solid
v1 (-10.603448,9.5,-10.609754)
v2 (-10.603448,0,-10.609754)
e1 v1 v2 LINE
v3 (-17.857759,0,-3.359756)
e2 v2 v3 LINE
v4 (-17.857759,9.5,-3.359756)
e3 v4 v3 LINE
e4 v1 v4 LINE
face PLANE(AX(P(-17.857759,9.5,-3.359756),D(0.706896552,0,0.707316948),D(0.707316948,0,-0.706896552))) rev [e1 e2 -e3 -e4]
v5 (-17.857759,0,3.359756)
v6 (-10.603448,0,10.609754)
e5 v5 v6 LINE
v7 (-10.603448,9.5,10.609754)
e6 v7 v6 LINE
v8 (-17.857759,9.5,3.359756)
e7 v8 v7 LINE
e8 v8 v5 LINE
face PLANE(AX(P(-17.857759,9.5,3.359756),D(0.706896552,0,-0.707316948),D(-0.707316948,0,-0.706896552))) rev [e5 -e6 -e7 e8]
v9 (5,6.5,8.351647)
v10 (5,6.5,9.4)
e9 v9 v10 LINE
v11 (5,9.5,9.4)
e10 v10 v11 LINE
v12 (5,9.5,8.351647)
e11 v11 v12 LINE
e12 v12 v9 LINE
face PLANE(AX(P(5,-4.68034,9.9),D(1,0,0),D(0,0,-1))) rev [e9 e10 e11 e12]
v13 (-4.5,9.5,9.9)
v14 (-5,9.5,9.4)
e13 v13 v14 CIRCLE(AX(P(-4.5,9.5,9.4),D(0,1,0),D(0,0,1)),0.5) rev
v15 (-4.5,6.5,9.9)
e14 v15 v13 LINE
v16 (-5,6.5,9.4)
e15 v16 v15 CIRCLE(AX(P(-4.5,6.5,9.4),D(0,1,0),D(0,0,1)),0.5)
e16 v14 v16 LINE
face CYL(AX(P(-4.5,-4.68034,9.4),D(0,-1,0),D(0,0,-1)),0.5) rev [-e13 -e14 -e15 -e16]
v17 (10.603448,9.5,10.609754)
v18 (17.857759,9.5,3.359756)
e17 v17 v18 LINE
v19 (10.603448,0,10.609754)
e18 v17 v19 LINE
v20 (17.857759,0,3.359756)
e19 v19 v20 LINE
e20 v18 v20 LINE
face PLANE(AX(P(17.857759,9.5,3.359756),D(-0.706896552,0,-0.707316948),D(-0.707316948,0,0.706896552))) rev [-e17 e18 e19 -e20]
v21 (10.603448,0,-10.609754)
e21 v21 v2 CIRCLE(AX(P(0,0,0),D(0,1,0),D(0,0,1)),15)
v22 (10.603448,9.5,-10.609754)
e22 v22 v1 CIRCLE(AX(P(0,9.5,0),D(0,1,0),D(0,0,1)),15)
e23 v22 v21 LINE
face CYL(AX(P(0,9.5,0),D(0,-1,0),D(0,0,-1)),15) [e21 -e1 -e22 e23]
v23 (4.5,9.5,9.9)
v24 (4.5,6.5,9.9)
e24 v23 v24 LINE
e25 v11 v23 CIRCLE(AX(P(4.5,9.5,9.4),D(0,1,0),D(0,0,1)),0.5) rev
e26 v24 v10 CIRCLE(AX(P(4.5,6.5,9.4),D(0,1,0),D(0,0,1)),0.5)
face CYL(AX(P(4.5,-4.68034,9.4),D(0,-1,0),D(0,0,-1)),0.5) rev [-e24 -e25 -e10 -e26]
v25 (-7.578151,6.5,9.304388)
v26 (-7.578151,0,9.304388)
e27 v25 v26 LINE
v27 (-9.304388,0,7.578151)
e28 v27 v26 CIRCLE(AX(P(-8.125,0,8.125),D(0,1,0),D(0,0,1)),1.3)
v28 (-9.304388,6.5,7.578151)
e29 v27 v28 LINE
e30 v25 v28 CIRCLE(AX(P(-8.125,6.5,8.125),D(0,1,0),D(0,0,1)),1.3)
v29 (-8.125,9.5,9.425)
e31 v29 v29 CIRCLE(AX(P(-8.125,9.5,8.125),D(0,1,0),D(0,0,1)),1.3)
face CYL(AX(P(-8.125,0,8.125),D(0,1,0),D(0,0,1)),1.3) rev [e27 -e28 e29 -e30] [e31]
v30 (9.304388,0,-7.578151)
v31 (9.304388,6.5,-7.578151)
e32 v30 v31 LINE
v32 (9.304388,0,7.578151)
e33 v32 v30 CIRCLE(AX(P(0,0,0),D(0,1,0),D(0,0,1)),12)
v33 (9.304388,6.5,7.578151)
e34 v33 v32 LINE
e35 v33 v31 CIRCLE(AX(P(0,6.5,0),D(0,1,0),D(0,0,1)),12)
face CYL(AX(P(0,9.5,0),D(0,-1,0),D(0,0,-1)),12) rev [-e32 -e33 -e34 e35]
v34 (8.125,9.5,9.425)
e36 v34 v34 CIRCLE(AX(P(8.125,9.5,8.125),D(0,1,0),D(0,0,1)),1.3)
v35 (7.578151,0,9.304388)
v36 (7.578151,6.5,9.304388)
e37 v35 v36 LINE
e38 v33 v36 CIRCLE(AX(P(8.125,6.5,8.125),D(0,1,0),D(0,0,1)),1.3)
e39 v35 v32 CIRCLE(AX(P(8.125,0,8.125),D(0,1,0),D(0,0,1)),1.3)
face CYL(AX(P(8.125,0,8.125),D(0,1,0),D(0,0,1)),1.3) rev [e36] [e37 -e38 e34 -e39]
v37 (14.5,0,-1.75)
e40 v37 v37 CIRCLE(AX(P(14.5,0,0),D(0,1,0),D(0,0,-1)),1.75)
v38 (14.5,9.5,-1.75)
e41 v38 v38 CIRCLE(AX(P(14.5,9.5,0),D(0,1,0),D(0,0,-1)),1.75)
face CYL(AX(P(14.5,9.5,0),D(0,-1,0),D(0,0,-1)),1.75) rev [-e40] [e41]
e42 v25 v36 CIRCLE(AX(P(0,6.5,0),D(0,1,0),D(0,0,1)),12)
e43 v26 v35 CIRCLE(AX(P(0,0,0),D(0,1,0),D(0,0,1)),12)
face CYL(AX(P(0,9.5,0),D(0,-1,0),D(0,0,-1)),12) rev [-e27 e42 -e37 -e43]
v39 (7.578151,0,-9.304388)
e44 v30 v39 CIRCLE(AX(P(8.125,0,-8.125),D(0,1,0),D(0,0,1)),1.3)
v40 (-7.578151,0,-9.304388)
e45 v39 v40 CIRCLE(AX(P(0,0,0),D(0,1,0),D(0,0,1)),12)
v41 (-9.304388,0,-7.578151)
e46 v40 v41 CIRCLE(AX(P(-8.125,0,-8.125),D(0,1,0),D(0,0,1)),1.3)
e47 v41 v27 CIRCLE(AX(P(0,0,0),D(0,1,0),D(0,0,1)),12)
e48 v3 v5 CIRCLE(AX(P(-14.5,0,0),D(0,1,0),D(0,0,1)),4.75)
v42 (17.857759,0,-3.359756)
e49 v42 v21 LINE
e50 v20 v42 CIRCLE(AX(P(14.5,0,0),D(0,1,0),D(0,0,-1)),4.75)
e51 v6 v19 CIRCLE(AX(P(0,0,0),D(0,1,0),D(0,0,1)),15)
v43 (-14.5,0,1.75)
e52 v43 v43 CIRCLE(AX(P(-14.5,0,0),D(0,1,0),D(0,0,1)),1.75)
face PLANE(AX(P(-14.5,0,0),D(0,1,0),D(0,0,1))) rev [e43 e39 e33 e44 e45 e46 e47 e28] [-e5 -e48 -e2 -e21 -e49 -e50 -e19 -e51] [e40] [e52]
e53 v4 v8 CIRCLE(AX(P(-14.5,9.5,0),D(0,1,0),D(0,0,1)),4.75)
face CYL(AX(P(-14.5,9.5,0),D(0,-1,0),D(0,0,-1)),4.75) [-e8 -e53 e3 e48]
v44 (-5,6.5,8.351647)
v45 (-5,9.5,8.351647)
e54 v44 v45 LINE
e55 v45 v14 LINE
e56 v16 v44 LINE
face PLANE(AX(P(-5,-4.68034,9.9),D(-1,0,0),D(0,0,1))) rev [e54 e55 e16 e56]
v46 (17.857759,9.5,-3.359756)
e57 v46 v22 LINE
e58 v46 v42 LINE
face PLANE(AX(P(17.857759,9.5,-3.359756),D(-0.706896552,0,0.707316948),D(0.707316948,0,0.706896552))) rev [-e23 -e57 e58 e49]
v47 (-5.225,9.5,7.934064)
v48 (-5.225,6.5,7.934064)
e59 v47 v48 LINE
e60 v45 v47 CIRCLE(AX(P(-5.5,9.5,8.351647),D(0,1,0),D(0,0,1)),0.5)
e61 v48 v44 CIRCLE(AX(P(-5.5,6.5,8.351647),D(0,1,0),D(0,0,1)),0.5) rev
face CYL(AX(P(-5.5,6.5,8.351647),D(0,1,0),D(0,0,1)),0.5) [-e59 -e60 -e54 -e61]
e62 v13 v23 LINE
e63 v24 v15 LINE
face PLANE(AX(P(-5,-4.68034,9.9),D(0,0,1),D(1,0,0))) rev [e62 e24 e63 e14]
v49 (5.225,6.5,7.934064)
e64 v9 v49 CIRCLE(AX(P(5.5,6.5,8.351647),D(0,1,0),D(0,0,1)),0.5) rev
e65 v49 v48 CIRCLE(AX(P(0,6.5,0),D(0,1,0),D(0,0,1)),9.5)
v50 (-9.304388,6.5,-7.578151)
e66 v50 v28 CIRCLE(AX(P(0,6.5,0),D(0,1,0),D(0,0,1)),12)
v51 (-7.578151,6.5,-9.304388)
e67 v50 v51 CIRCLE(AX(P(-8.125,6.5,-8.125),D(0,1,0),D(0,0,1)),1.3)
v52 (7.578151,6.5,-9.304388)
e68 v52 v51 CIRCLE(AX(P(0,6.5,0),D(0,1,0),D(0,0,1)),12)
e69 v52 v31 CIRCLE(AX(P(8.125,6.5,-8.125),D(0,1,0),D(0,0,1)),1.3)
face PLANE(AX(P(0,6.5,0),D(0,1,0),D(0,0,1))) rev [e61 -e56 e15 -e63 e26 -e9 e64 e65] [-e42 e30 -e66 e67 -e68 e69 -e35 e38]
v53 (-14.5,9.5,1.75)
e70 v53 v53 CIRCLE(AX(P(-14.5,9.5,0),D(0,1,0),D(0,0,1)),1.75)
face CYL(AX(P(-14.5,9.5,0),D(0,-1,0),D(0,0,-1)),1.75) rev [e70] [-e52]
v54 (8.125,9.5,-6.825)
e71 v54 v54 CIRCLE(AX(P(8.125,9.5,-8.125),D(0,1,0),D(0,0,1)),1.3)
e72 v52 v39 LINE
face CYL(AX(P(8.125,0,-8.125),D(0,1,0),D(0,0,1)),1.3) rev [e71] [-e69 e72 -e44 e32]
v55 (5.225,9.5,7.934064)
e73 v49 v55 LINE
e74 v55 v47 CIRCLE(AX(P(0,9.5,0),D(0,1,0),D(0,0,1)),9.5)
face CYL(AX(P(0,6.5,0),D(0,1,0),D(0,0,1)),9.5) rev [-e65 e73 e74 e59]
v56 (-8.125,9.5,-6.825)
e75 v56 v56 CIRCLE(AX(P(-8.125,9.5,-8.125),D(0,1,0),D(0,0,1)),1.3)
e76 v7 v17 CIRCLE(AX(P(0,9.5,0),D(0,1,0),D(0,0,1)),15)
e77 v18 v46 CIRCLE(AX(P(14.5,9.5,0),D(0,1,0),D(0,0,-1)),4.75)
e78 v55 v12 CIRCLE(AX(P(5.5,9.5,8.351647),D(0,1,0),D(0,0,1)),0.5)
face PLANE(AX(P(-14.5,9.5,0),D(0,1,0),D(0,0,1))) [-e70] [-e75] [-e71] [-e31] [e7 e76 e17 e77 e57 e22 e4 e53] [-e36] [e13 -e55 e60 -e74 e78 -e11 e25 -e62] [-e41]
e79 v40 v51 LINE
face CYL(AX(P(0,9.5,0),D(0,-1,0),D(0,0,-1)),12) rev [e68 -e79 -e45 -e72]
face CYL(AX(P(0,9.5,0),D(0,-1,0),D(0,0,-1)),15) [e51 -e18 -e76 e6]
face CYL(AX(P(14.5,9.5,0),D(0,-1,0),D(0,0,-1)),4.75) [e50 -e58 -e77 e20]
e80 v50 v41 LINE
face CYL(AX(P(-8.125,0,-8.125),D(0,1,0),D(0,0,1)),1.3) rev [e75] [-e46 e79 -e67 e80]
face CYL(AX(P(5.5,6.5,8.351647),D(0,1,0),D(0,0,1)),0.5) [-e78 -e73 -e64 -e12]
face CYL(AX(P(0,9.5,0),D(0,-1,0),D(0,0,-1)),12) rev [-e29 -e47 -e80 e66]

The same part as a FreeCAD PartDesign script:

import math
import FreeCAD as App
import Part
import Sketcher

V = App.Vector


def edges_at(feature, points):
    """Names of the edges that pass closest to the given points."""
    edges = feature.Shape.Edges
    near = lambda p: min(range(len(edges)), key=lambda i: edges[i].distToShape(Part.Vertex(*p))[0])
    return sorted({f"Edge{near(p) + 1}" for p in points})

doc = App.newDocument("Part")
body = doc.addObject("PartDesign::Body", "Body")

# Sketch on XZ plane
sketch1 = doc.addObject("Sketcher::SketchObject", "Sketch")
body.addObject(sketch1)
sketch1.AttachmentSupport = (doc.XZ_Plane, [""])
sketch1.MapMode = "FlatFace"
sketch1.addGeometry([
    Part.LineSegment(V(-10.6, -10.6, 0), V(-17.9, -3.4, 0)),  # 0
    Part.ArcOfCircle(Part.Circle(V(-14.5, 0, 0), V(0, 0, 1), 4.8), math.radians(135), math.radians(225)),  # 1
    Part.LineSegment(V(-17.9, 3.4, 0), V(-10.6, 10.6, 0)),  # 2
    Part.ArcOfCircle(Part.Circle(V(0, 0, 0), V(0, 0, 1), 15), math.radians(45), math.radians(135)),  # 3
    Part.LineSegment(V(10.6, 10.6, 0), V(17.9, 3.4, 0)),  # 4
    Part.ArcOfCircle(Part.Circle(V(14.5, 0, 0), V(0, 0, 1), 4.8), math.radians(-45), math.radians(45)),  # 5
    Part.LineSegment(V(17.9, -3.4, 0), V(10.6, -10.6, 0)),  # 6
    Part.ArcOfCircle(Part.Circle(V(0, 0, 0), V(0, 0, 1), 15), math.radians(-135), math.radians(-45)),  # 7
    Part.Circle(V(14.5, 0, 0), V(0, 0, 1), 1.8),  # 8
    Part.Circle(V(0, 0, 0), V(0, 0, 1), 12),  # 9
    Part.Circle(V(-14.5, 0, 0), V(0, 0, 1), 1.8),  # 10
], False)
sketch1.addConstraint([
    Sketcher.Constraint("Tangent", 0, 2, 1, 2),
    Sketcher.Constraint("Tangent", 1, 1, 2, 1),
    Sketcher.Constraint("Tangent", 2, 2, 3, 2),
    Sketcher.Constraint("Tangent", 3, 1, 4, 1),
    Sketcher.Constraint("Tangent", 4, 2, 5, 2),
    Sketcher.Constraint("Tangent", 5, 1, 6, 1),
    Sketcher.Constraint("Tangent", 6, 2, 7, 2),
    Sketcher.Constraint("Tangent", 7, 1, 0, 1),
    Sketcher.Constraint("Coincident", 3, 3, -1, 1),
    Sketcher.Constraint("Coincident", 7, 3, -1, 1),
    Sketcher.Constraint("Coincident", 9, 3, -1, 1),
    Sketcher.Constraint("Coincident", 8, 3, 5, 3),
    Sketcher.Constraint("Coincident", 10, 3, 1, 3),
    Sketcher.Constraint("Equal", 1, 5),
    Sketcher.Constraint("Equal", 3, 7),
    Sketcher.Constraint("Equal", 8, 10),
    Sketcher.Constraint("Symmetric", 1, 3, 5, 3, -1, 1),
    Sketcher.Constraint("PointOnObject", 1, 3, -1),
    Sketcher.Constraint("Diameter", 9, 24.0),
    Sketcher.Constraint("Radius", 3, 15.0),
    Sketcher.Constraint("Diameter", 8, 3.5),
    Sketcher.Constraint("Radius", 1, 4.75),
    Sketcher.Constraint("DistanceX", 1, 3, 5, 3, 29.0),
])
pad1 = doc.addObject("PartDesign::Pad", "Pad")
body.addObject(pad1)
pad1.Profile = sketch1
pad1.Length = 9.5
pad1.Reversed = True

# Sketch on XZ plane
sketch2 = doc.addObject("Sketcher::SketchObject", "Sketch001")
body.addObject(sketch2)
sketch2.AttachmentSupport = (doc.XZ_Plane, [""])
sketch2.MapMode = "FlatFace"
sketch2.AttachmentOffset = App.Placement(V(0, 0, -9.5), App.Rotation())
sketch2.addGeometry([
    Part.Circle(V(0, 0, 0), V(0, 0, 1), 12),
    Part.Circle(V(0, 0, 0), V(0, 0, 1), 10),
], False)
sketch2.addConstraint([
    Sketcher.Constraint("Coincident", 0, 3, -1, 1),
    Sketcher.Constraint("Coincident", 1, 3, -1, 1),
    Sketcher.Constraint("Diameter", 0, 24.0),
    Sketcher.Constraint("Diameter", 1, 19.0),
])
pad2 = doc.addObject("PartDesign::Pad", "Pad001")
body.addObject(pad2)
pad2.Profile = sketch2
pad2.Length = 3

# Sketch on XZ plane
sketch3 = doc.addObject("Sketcher::SketchObject", "Sketch002")
body.addObject(sketch3)
sketch3.AttachmentSupport = (doc.XZ_Plane, [""])
sketch3.MapMode = "FlatFace"
sketch3.AttachmentOffset = App.Placement(V(0, 0, -9.5), App.Rotation())
sketch3.addGeometry([
    Part.Circle(V(8.1, -8.1, 0), V(0, 0, 1), 1.3),
    Part.Circle(V(-8.1, -8.1, 0), V(0, 0, 1), 1.3),
    Part.Circle(V(-8.1, 8.1, 0), V(0, 0, 1), 1.3),
    Part.Circle(V(8.1, 8.1, 0), V(0, 0, 1), 1.3),
], False)
sketch3.addConstraint([
    Sketcher.Constraint("Equal", 0, 1),
    Sketcher.Constraint("Equal", 1, 2),
    Sketcher.Constraint("Equal", 2, 3),
    Sketcher.Constraint("Symmetric", 0, 3, 2, 3, -1, 1),
    Sketcher.Constraint("Symmetric", 1, 3, 3, 3, -1, 1),
    Sketcher.Constraint("Symmetric", 0, 3, 1, 3, -2),
    Sketcher.Constraint("Diameter", 0, 2.6),
    Sketcher.Constraint("DistanceX", 1, 3, 0, 3, 16.25),
    Sketcher.Constraint("DistanceY", 1, 3, 2, 3, 16.25),
])
pocket1 = doc.addObject("PartDesign::Pocket", "Pocket")
body.addObject(pocket1)
pocket1.Profile = sketch3
pocket1.Type = "ThroughAll"
pocket1.Reversed = True

# Sketch on XZ plane
sketch4 = doc.addObject("Sketcher::SketchObject", "Sketch003")
body.addObject(sketch4)
sketch4.AttachmentSupport = (doc.XZ_Plane, [""])
sketch4.MapMode = "FlatFace"
sketch4.AttachmentOffset = App.Placement(V(0, 0, -9.5), App.Rotation())
sketch4.addGeometry([
    Part.LineSegment(V(-5, 5, 0), V(-5, 10, 0)),
    Part.LineSegment(V(-5, 10, 0), V(5, 10, 0)),
    Part.LineSegment(V(5, 10, 0), V(5, 5, 0)),
    Part.LineSegment(V(5, 5, 0), V(-5, 5, 0)),
], False)
sketch4.addConstraint([
    Sketcher.Constraint("Coincident", 0, 2, 1, 1),
    Sketcher.Constraint("Coincident", 1, 2, 2, 1),
    Sketcher.Constraint("Coincident", 2, 2, 3, 1),
    Sketcher.Constraint("Coincident", 3, 2, 0, 1),
    Sketcher.Constraint("Vertical", 0),
    Sketcher.Constraint("Horizontal", 1),
    Sketcher.Constraint("Vertical", 2),
    Sketcher.Constraint("Horizontal", 3),
    Sketcher.Constraint("DistanceX", 1, 1, 1, 2, 10.0),
    Sketcher.Constraint("DistanceY", 0, 1, 0, 2, 5.0),
    Sketcher.Constraint("DistanceX", 0, 2, -1, 1, 5.0),
    Sketcher.Constraint("DistanceY", -1, 1, 0, 2, 9.9),
])
pocket2 = doc.addObject("PartDesign::Pocket", "Pocket001")
body.addObject(pocket2)
pocket2.Profile = sketch4
pocket2.Length = 3
pocket2.Reversed = True
doc.recompute()

fillet = doc.addObject("PartDesign::Fillet", "Fillet")
body.addObject(fillet)
fillet.Base = (pocket2, edges_at(pocket2, [
    (-5, 8, 8.078),
    (5, 8, 8.078),
    (-5, 8, 9.9),
    (5, 8, 9.9),
]))
fillet.Radius = 0.5

doc.recompute()
